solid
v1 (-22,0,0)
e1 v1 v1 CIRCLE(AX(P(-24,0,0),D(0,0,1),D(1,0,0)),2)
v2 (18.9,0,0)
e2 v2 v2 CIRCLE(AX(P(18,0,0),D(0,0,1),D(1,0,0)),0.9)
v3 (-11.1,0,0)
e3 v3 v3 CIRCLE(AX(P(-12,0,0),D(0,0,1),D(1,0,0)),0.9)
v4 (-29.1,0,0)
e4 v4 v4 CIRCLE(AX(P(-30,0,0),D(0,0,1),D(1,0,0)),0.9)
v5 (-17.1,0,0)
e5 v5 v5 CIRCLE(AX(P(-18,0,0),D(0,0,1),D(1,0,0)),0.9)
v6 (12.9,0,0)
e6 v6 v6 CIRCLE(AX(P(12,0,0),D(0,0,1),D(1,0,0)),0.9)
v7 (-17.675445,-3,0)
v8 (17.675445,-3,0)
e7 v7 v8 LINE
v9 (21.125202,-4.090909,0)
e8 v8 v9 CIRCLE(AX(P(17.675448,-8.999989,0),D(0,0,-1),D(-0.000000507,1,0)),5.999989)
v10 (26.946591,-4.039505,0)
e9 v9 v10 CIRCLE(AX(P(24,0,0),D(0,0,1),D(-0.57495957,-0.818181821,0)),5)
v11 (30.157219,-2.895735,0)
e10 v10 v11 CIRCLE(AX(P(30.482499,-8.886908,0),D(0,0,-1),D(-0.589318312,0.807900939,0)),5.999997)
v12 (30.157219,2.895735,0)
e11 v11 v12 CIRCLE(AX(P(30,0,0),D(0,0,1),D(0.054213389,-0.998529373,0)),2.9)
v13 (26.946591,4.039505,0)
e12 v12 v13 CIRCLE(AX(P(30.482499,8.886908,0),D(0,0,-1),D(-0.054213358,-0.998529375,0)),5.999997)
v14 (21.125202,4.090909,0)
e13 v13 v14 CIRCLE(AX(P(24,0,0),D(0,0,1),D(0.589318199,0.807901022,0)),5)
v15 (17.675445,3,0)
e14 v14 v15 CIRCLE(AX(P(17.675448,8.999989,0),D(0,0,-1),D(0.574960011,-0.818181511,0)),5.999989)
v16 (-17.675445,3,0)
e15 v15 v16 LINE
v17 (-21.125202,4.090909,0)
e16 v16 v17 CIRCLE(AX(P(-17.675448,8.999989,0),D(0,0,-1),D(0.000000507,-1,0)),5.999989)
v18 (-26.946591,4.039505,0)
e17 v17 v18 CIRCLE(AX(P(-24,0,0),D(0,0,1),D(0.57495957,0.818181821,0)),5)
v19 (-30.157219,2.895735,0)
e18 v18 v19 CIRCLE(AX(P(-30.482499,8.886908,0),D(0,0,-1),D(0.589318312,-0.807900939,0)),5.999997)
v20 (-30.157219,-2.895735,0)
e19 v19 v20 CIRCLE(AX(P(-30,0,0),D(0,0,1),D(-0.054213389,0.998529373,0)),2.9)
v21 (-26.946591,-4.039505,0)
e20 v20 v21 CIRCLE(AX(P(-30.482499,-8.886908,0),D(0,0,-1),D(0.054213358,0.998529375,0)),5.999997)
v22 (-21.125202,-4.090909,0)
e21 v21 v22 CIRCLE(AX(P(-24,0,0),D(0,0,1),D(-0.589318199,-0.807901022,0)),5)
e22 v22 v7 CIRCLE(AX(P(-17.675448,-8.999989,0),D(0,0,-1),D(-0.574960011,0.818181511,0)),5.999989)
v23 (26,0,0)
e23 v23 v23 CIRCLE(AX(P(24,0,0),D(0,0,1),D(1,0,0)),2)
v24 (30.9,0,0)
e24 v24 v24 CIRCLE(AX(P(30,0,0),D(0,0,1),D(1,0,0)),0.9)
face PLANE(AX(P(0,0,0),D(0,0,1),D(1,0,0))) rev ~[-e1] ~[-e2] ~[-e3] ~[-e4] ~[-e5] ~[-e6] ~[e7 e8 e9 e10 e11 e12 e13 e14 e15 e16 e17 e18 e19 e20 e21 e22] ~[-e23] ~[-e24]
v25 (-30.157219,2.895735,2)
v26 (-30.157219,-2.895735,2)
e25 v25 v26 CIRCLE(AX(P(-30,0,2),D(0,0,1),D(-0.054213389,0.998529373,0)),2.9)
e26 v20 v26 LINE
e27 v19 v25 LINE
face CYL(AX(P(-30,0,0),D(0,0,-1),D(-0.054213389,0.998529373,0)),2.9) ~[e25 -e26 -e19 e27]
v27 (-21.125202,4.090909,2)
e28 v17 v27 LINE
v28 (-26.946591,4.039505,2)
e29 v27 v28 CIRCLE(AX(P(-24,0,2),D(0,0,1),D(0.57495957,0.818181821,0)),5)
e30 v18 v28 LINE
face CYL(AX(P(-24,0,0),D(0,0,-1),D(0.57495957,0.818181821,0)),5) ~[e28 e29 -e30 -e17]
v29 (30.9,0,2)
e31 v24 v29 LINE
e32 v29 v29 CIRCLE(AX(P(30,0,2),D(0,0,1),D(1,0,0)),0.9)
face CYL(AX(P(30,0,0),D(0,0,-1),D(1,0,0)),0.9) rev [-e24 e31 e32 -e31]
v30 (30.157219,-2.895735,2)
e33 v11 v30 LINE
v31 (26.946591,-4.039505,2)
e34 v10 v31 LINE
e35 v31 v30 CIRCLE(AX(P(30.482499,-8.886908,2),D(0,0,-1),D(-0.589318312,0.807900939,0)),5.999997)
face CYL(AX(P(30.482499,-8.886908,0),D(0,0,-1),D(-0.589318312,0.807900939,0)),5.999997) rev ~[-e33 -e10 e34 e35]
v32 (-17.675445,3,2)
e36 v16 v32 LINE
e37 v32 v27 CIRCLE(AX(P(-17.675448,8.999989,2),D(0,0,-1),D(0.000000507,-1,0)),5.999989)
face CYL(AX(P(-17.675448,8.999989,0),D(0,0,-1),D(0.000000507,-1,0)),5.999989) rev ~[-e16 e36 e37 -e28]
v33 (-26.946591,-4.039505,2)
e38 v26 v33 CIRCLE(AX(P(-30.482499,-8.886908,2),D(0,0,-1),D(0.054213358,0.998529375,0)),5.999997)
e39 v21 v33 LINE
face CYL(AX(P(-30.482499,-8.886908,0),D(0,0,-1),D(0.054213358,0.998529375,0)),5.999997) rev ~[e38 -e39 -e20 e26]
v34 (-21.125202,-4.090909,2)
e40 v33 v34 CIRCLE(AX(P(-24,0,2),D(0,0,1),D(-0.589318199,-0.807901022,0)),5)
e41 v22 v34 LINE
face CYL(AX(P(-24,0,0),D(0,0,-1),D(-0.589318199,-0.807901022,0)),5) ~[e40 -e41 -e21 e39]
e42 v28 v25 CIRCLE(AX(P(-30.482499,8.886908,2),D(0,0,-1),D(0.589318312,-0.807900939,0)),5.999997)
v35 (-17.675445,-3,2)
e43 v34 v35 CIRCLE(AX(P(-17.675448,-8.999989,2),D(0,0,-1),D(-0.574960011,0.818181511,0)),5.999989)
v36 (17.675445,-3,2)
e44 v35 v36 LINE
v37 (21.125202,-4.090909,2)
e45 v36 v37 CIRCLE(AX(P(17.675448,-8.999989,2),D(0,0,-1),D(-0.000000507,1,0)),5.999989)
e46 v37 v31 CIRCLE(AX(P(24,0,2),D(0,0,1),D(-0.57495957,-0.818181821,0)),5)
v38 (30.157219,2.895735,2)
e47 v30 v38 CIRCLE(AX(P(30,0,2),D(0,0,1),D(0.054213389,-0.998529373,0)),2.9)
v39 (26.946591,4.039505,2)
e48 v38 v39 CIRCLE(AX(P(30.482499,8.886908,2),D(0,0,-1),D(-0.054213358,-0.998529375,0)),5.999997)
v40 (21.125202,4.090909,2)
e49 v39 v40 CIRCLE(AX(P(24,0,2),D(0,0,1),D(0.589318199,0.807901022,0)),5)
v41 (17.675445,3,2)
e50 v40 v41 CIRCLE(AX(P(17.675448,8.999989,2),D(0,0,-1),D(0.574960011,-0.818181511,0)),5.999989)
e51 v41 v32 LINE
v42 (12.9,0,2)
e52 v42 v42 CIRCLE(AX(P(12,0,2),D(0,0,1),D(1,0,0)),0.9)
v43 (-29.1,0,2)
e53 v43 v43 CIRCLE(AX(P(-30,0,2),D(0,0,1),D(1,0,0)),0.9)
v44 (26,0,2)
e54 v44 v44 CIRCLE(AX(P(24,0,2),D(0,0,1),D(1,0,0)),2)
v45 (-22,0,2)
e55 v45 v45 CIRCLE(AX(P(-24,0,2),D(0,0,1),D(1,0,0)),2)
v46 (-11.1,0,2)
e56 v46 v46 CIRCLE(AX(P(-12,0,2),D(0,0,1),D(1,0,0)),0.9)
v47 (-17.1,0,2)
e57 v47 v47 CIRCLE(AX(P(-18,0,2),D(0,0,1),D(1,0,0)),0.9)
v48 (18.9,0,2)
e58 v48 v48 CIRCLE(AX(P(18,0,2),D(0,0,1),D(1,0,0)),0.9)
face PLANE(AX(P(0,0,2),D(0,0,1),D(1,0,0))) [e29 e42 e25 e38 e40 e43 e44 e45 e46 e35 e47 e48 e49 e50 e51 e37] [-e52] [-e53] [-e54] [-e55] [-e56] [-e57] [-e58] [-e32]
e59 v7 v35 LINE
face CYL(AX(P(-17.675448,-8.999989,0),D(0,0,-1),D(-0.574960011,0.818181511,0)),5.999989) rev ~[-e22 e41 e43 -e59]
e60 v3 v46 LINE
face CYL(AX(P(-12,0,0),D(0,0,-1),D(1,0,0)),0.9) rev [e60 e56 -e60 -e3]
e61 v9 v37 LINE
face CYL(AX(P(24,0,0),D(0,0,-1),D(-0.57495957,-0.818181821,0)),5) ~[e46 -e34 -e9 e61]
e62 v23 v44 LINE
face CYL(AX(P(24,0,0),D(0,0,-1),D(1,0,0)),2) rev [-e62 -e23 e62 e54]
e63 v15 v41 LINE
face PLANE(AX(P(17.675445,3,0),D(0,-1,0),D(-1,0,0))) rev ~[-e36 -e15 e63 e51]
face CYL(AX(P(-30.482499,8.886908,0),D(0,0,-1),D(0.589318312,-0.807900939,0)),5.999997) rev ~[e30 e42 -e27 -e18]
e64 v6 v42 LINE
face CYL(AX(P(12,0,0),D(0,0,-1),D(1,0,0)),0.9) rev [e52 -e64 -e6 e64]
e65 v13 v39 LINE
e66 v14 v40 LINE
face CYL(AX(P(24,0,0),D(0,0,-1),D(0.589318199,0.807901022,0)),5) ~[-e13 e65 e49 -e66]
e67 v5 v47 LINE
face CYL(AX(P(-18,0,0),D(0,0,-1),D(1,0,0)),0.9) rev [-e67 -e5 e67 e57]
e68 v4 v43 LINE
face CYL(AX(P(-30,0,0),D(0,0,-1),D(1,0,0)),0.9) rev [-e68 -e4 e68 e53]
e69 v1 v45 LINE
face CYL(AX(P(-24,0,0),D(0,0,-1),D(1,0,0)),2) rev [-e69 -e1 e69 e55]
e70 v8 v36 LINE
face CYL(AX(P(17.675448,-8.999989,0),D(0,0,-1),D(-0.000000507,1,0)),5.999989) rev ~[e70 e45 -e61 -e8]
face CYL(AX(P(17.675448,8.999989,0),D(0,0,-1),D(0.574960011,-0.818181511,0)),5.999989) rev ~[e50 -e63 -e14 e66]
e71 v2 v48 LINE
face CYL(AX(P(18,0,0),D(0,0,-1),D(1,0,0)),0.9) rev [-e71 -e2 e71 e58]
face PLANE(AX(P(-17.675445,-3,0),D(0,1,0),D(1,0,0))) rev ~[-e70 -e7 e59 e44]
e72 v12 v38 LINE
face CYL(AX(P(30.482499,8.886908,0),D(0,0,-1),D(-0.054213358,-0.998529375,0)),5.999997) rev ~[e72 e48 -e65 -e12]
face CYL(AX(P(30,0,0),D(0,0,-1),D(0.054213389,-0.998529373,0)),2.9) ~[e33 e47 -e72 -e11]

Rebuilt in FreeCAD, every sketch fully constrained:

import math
import FreeCAD as App
import Part
import Sketcher

V = App.Vector

doc = App.newDocument("Part")
body = doc.addObject("PartDesign::Body", "Body")

sketch1 = doc.addObject("Sketcher::SketchObject", "Sketch")
body.addObject(sketch1)
sketch1.AttachmentSupport = (doc.XY_Plane, [""])
sketch1.MapMode = "FlatFace"
sketch1.addGeometry([
    Part.LineSegment(V(17.7, 3, 0), V(-17.7, 3, 0)),
    Part.ArcOfCircle(Part.Circle(V(-17.7, 9, 0), V(0, 0, 1), 6), math.radians(-125), math.radians(-90)),
    Part.ArcOfCircle(Part.Circle(V(-24, 0, 0), V(0, 0, 1), 5), math.radians(55), math.radians(126)),
    Part.ArcOfCircle(Part.Circle(V(-30.5, 8.9, 0), V(0, 0, 1), 6), math.radians(-87), math.radians(-54)),
    Part.ArcOfCircle(Part.Circle(V(-30, 0, 0), V(0, 0, 1), 2.9), math.radians(93), math.radians(267)),
    Part.ArcOfCircle(Part.Circle(V(-30.5, -8.9, 0), V(0, 0, 1), 6), math.radians(54), math.radians(87)),
    Part.ArcOfCircle(Part.Circle(V(-24, 0, 0), V(0, 0, 1), 5), math.radians(-126), math.radians(-55)),
    Part.ArcOfCircle(Part.Circle(V(-17.7, -9, 0), V(0, 0, 1), 6), math.radians(90), math.radians(125)),
    Part.LineSegment(V(-17.7, -3, 0), V(17.7, -3, 0)),
    Part.ArcOfCircle(Part.Circle(V(17.7, -9, 0), V(0, 0, 1), 6), math.radians(55), math.radians(90)),
    Part.ArcOfCircle(Part.Circle(V(24, 0, 0), V(0, 0, 1), 5), math.radians(-125), math.radians(-54)),
    Part.ArcOfCircle(Part.Circle(V(30.5, -8.9, 0), V(0, 0, 1), 6), math.radians(93), math.radians(126)),
    Part.ArcOfCircle(Part.Circle(V(30, 0, 0), V(0, 0, 1), 2.9), math.radians(-87), math.radians(87)),
    Part.ArcOfCircle(Part.Circle(V(30.5, 8.9, 0), V(0, 0, 1), 6), math.radians(-126), math.radians(-93)),
    Part.ArcOfCircle(Part.Circle(V(24, 0, 0), V(0, 0, 1), 5), math.radians(54), math.radians(125)),
    Part.ArcOfCircle(Part.Circle(V(17.7, 9, 0), V(0, 0, 1), 6), math.radians(-90), math.radians(-55)),
    Part.Circle(V(-30, 0, 0), V(0, 0, 1), 0.9),
    Part.Circle(V(-24, 0, 0), V(0, 0, 1), 2),
    Part.Circle(V(-18, 0, 0), V(0, 0, 1), 0.9),
    Part.Circle(V(-12, 0, 0), V(0, 0, 1), 0.9),
    Part.Circle(V(12, 0, 0), V(0, 0, 1), 0.9),
    Part.Circle(V(18, 0, 0), V(0, 0, 1), 0.9),
    Part.Circle(V(24, 0, 0), V(0, 0, 1), 2),
    Part.Circle(V(30, 0, 0), V(0, 0, 1), 0.9),
], False)
sketch1.addConstraint([
    Sketcher.Constraint("Tangent", 0, 2, 1, 2),
    Sketcher.Constraint("Tangent", 1, 1, 2, 1),
    Sketcher.Constraint("Tangent", 2, 2, 3, 2),
    Sketcher.Constraint("Tangent", 3, 1, 4, 1),
    Sketcher.Constraint("Tangent", 4, 2, 5, 2),
    Sketcher.Constraint("Tangent", 5, 1, 6, 1),
    Sketcher.Constraint("Tangent", 6, 2, 7, 2),
    Sketcher.Constraint("Tangent", 7, 1, 8, 1),
    Sketcher.Constraint("Tangent", 8, 2, 9, 2),
    Sketcher.Constraint("Tangent", 9, 1, 10, 1),
    Sketcher.Constraint("Tangent", 10, 2, 11, 2),
    Sketcher.Constraint("Tangent", 11, 1, 12, 1),
    Sketcher.Constraint("Tangent", 12, 2, 13, 2),
    Sketcher.Constraint("Tangent", 13, 1, 14, 1),
    Sketcher.Constraint("Tangent", 14, 2, 15, 2),
    Sketcher.Constraint("Tangent", 15, 1, 0, 1),
    Sketcher.Constraint("Horizontal", 0),
    Sketcher.Constraint("Horizontal", 8),
    Sketcher.Constraint("Coincident", 6, 3, 2, 3),
    Sketcher.Constraint("Coincident", 14, 3, 10, 3),
    Sketcher.Constraint("Coincident", 16, 3, 4, 3),
    Sketcher.Constraint("Coincident", 17, 3, 2, 3),
    Sketcher.Constraint("Coincident", 22, 3, 10, 3),
    Sketcher.Constraint("Coincident", 23, 3, 12, 3),
    Sketcher.Constraint("Equal", 3, 5),
    Sketcher.Constraint("Equal", 2, 6),
    Sketcher.Constraint("Equal", 1, 7),
    Sketcher.Constraint("Equal", 7, 9),
    Sketcher.Constraint("Equal", 6, 10),
    Sketcher.Constraint("Equal", 5, 11),
    Sketcher.Constraint("Equal", 4, 12),
    Sketcher.Constraint("Equal", 11, 13),
    Sketcher.Constraint("Equal", 10, 14),
    Sketcher.Constraint("Equal", 9, 15),
    Sketcher.Constraint("Equal", 16, 18),
    Sketcher.Constraint("Equal", 18, 19),
    Sketcher.Constraint("Equal", 19, 20),
    Sketcher.Constraint("Equal", 20, 21),
    Sketcher.Constraint("Equal", 17, 22),
    Sketcher.Constraint("Equal", 21, 23),
    Sketcher.Constraint("Symmetric", 1, 3, 9, 3, -1, 1),
    Sketcher.Constraint("Symmetric", 3, 3, 11, 3, -1, 1),
    Sketcher.Constraint("Symmetric", 19, 3, 20, 3, -1, 1),
    Sketcher.Constraint("Symmetric", 18, 3, 21, 3, -1, 1),
    Sketcher.Constraint("Symmetric", 5, 3, 11, 3, -2),
    Sketcher.Constraint("PointOnObject", 12, 3, -1),
    Sketcher.Constraint("PointOnObject", 18, 3, -1),
    Sketcher.Constraint("PointOnObject", 19, 3, -1),
    Sketcher.Constraint("Diameter", 17, 4.0),
    Sketcher.Constraint("Radius", 2, 5.0),
    Sketcher.Constraint("Diameter", 16, 1.8),
    Sketcher.Constraint("Radius", 4, 2.9),
    Sketcher.Constraint("DistanceX", 2, 3, -1, 1, 24.0),
    Sketcher.Constraint("DistanceX", 4, 3, -1, 1, 30.0),
    Sketcher.Constraint("DistanceX", 18, 3, -1, 1, 18.0),
    Sketcher.Constraint("DistanceX", 19, 3, -1, 1, 12.0),
    Sketcher.Constraint("DistanceY", -1, 1, 0, 2, 3.0),
    Sketcher.Constraint("Radius", 1, 5.999989),
    Sketcher.Constraint("Radius", 3, 5.999997),
])
pad1 = doc.addObject("PartDesign::Pad", "Pad")
body.addObject(pad1)
pad1.Profile = sketch1
pad1.Length = 2

doc.recompute()
